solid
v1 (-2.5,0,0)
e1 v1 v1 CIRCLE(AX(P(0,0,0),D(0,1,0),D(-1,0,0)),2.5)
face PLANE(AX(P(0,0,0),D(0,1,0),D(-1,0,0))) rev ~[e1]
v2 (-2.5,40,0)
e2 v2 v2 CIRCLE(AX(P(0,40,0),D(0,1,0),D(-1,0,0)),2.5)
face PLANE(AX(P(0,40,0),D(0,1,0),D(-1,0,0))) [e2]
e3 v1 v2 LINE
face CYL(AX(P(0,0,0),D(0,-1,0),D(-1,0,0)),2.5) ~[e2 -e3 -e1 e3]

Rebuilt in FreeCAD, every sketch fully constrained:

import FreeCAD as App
import Part
import Sketcher
from FreeCAD import Vector
Q = App.Units.Quantity

doc = App.newDocument("Part")
body = doc.addObject("PartDesign::Body", "Body")

# Sketch on XZ plane
sketch1 = body.newObject("Sketcher::SketchObject", "Sketch")
sketch1.AttachmentSupport = (doc.getObject("XZ_Plane"), [""])
sketch1.MapMode = "FlatFace"
sketch1.addGeometry(Part.Circle(Vector(0, 0, 0), Vector(0, 0, 1), 2.5), False)
sketch1.addConstraint([
    Sketcher.Constraint("Coincident", 0, 3, -1, 1),
    Sketcher.Constraint("Diameter", 0, Q("5 mm")),
])
pad1 = body.newObject("PartDesign::Pad", "Pad")
pad1.Profile = sketch1
pad1.Length = 40
pad1.Reversed = True

doc.recompute()
